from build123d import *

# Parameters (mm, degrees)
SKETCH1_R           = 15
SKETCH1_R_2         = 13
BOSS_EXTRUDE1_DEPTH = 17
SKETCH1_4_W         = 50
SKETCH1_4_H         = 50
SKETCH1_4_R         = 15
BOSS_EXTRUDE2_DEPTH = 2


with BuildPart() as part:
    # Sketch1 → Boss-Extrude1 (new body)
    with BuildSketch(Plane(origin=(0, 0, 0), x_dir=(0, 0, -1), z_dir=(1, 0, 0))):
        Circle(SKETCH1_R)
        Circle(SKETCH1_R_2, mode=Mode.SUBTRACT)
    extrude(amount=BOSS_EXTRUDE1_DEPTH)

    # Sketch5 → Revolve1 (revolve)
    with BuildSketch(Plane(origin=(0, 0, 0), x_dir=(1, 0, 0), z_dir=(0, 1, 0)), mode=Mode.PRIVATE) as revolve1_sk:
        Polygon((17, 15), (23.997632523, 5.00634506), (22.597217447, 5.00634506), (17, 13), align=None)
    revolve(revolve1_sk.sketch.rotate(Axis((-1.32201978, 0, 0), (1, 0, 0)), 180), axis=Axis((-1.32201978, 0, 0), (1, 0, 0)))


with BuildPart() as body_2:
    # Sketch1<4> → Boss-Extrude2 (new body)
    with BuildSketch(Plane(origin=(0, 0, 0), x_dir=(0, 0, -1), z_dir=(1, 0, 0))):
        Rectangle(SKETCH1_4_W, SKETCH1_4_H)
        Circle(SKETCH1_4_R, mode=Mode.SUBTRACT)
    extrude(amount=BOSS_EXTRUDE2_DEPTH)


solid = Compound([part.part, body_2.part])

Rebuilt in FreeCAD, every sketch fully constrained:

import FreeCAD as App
import Part
import Sketcher
Q = App.Units.Quantity


def add_polygon(sketch, points):
    """Adds a closed chain of lines whose ends are joined by coincident constraints."""
    first, n = sketch.GeometryCount, len(points)
    for a, b in zip(points, points[1:] + points[:1]):
        sketch.addGeometry(Part.LineSegment(App.Vector(*a, 0), App.Vector(*b, 0)), False)
    for i in range(n):
        sketch.addConstraint(Sketcher.Constraint("Coincident", first + i, 2, first + (i + 1) % n, 1))

doc = App.newDocument("Part")
body = doc.addObject("PartDesign::Body", "Body")

# Sketch on YZ plane
sketch1 = body.newObject("Sketcher::SketchObject", "Sketch")
sketch1.AttachmentSupport = (doc.getObject("YZ_Plane"), [""])
sketch1.MapMode = "FlatFace"
sketch1.addGeometry([
    Part.Circle(App.Vector(0, 0, 0), App.Vector(0, 0, 1), 15),
    Part.Circle(App.Vector(0, 0, 0), App.Vector(0, 0, 1), 13),
], False)
sketch1.addConstraint([
    Sketcher.Constraint("Coincident", 0, 3, -1, 1),
    Sketcher.Constraint("Coincident", 1, 3, -1, 1),
    Sketcher.Constraint("Diameter", 0, 30.0),
    Sketcher.Constraint("Diameter", 1, 26.0),
])
pad1 = body.newObject("PartDesign::Pad", "Pad")
pad1.Profile = sketch1
pad1.Length = 17

# Sketch on XZ plane
sketch2 = body.newObject("Sketcher::SketchObject", "Sketch001")
sketch2.AttachmentSupport = (doc.getObject("XZ_Plane"), [""])
sketch2.MapMode = "FlatFace"
add_polygon(sketch2, [(24, -5), (17, -15), (17, -13), (22.6, -5)])  # lines 0-3
sketch2.addConstraint([
    Sketcher.Constraint("Vertical", 1),
    Sketcher.Constraint("Horizontal", 3),
    Sketcher.Constraint("Parallel", 0, 2),
    Sketcher.Constraint("DistanceY", 1, 1, 1, 2, 2.0),
    Sketcher.Constraint("Angle", 0, Q("-125 deg")),
    Sketcher.Constraint("DistanceX", -1, 1, 0, 2, 17.0),
    Sketcher.Constraint("DistanceY", 0, 2, -1, 1, 15.0),
    Sketcher.Constraint("Distance", 0, 12.2),
])
revolution = body.newObject("PartDesign::Revolution", "Revolution")
revolution.Profile = sketch2
revolution.ReferenceAxis = (sketch2, ["H_Axis"])
revolution.Angle = 360
body2 = doc.addObject("PartDesign::Body", "Body001")

# Sketch on YZ plane
sketch3 = body2.newObject("Sketcher::SketchObject", "Sketch002")
sketch3.AttachmentSupport = (doc.getObject("YZ_Plane001"), [""])
sketch3.MapMode = "FlatFace"
add_polygon(sketch3, [(25, 25), (-25, 25), (-25, -25), (25, -25)])  # lines 0-3
sketch3.addGeometry(Part.Circle(App.Vector(0, 0, 0), App.Vector(0, 0, 1), 15), False)  # 4
sketch3.addConstraint([
    Sketcher.Constraint("Horizontal", 0),
    Sketcher.Constraint("Vertical", 1),
    Sketcher.Constraint("Horizontal", 2),
    Sketcher.Constraint("Vertical", 3),
    Sketcher.Constraint("Coincident", 4, 3, -1, 1),
    Sketcher.Constraint("Symmetric", 0, 2, 2, 2, -1, 1),
    Sketcher.Constraint("Equal", 2, 1),
    Sketcher.Constraint("Diameter", 4, 30.0),
    Sketcher.Constraint("DistanceX", 0, 2, 0, 1, 50.0),
])
pad2 = body2.newObject("PartDesign::Pad", "Pad001")
pad2.Profile = sketch3
pad2.Length = 2

doc.recompute()
